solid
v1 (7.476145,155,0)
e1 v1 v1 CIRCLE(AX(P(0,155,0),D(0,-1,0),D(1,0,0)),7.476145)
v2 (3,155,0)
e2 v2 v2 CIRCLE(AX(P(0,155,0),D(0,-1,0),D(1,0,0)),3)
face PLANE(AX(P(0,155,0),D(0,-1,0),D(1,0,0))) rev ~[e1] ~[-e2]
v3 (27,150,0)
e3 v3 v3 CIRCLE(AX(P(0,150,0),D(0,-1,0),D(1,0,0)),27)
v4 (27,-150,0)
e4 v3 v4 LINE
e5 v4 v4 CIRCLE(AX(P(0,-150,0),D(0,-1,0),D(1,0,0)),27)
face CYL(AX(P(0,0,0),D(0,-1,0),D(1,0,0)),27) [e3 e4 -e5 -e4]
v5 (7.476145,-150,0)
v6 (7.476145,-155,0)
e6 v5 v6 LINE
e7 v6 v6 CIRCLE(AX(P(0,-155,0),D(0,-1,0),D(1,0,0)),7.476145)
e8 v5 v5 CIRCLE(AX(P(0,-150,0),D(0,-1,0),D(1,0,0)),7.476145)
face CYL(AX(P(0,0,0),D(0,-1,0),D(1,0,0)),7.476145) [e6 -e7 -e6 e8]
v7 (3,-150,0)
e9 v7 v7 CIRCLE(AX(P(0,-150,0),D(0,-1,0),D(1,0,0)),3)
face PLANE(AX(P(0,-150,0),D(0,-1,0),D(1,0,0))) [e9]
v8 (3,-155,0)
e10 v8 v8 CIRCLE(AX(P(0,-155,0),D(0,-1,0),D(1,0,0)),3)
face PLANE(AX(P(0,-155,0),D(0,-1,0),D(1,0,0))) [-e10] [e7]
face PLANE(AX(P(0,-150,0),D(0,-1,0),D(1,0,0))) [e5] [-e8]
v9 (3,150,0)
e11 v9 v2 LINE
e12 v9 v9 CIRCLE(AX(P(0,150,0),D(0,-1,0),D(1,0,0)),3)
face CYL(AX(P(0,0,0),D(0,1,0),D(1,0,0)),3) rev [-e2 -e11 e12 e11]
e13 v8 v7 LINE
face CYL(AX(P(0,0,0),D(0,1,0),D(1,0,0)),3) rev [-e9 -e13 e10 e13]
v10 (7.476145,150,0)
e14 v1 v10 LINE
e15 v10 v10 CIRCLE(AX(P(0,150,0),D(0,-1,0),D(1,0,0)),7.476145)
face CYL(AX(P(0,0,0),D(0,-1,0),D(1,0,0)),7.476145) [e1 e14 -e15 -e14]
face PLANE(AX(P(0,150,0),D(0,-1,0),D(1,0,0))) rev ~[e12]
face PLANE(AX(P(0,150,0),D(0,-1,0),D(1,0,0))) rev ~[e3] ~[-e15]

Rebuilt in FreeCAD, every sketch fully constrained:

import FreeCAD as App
import Part
import Sketcher

V = App.Vector

doc = App.newDocument("Part")
body = doc.addObject("PartDesign::Body", "Body")

sketch1 = doc.addObject("Sketcher::SketchObject", "Sketch")
body.addObject(sketch1)
sketch1.AttachmentSupport = (doc.XZ_Plane, [""])
sketch1.MapMode = "FlatFace"
sketch1.addGeometry(Part.Circle(V(0, 0, 0), V(0, 0, 1), 3), False)
sketch1.addConstraint(Sketcher.Constraint("Coincident", 0, 3, -1, 1))
sketch1.addConstraint(Sketcher.Constraint("Diameter", 0, 6.0))
pad1 = doc.addObject("PartDesign::Pad", "Pad")
body.addObject(pad1)
pad1.Profile = sketch1
pad1.Length = 300
pad1.Midplane = True

sketch2 = doc.addObject("Sketcher::SketchObject", "Sketch001")
body.addObject(sketch2)
sketch2.AttachmentSupport = (doc.XZ_Plane, [""])
sketch2.MapMode = "FlatFace"
sketch2.addGeometry(Part.Circle(V(0, 0, 0), V(0, 0, 1), 7.5), False)
sketch2.addGeometry(Part.Circle(V(0, 0, 0), V(0, 0, 1), 3), False)
sketch2.addConstraint(Sketcher.Constraint("Coincident", 0, 3, -1, 1))
sketch2.addConstraint(Sketcher.Constraint("Coincident", 1, 3, -1, 1))
sketch2.addConstraint(Sketcher.Constraint("Diameter", 1, 6.0))
sketch2.addConstraint(Sketcher.Constraint("Diameter", 0, 14.952291))
pad2 = doc.addObject("PartDesign::Pad", "Pad001")
body.addObject(pad2)
pad2.Profile = sketch2
pad2.Length = 310
pad2.Midplane = True

sketch3 = doc.addObject("Sketcher::SketchObject", "Sketch002")
body.addObject(sketch3)
sketch3.AttachmentSupport = (doc.XZ_Plane, [""])
sketch3.MapMode = "FlatFace"
sketch3.addGeometry(Part.Circle(V(0, 0, 0), V(0, 0, 1), 27), False)
sketch3.addGeometry(Part.Circle(V(0, 0, 0), V(0, 0, 1), 7), False)
sketch3.addConstraint(Sketcher.Constraint("Coincident", 0, 3, -1, 1))
sketch3.addConstraint(Sketcher.Constraint("Coincident", 1, 3, -1, 1))
sketch3.addConstraint(Sketcher.Constraint("Diameter", 0, 54.0))
sketch3.addConstraint(Sketcher.Constraint("Diameter", 1, 14.952291))
pad3 = doc.addObject("PartDesign::Pad", "Pad002")
body.addObject(pad3)
pad3.Profile = sketch3
pad3.Length = 300
pad3.Midplane = True

doc.recompute()
